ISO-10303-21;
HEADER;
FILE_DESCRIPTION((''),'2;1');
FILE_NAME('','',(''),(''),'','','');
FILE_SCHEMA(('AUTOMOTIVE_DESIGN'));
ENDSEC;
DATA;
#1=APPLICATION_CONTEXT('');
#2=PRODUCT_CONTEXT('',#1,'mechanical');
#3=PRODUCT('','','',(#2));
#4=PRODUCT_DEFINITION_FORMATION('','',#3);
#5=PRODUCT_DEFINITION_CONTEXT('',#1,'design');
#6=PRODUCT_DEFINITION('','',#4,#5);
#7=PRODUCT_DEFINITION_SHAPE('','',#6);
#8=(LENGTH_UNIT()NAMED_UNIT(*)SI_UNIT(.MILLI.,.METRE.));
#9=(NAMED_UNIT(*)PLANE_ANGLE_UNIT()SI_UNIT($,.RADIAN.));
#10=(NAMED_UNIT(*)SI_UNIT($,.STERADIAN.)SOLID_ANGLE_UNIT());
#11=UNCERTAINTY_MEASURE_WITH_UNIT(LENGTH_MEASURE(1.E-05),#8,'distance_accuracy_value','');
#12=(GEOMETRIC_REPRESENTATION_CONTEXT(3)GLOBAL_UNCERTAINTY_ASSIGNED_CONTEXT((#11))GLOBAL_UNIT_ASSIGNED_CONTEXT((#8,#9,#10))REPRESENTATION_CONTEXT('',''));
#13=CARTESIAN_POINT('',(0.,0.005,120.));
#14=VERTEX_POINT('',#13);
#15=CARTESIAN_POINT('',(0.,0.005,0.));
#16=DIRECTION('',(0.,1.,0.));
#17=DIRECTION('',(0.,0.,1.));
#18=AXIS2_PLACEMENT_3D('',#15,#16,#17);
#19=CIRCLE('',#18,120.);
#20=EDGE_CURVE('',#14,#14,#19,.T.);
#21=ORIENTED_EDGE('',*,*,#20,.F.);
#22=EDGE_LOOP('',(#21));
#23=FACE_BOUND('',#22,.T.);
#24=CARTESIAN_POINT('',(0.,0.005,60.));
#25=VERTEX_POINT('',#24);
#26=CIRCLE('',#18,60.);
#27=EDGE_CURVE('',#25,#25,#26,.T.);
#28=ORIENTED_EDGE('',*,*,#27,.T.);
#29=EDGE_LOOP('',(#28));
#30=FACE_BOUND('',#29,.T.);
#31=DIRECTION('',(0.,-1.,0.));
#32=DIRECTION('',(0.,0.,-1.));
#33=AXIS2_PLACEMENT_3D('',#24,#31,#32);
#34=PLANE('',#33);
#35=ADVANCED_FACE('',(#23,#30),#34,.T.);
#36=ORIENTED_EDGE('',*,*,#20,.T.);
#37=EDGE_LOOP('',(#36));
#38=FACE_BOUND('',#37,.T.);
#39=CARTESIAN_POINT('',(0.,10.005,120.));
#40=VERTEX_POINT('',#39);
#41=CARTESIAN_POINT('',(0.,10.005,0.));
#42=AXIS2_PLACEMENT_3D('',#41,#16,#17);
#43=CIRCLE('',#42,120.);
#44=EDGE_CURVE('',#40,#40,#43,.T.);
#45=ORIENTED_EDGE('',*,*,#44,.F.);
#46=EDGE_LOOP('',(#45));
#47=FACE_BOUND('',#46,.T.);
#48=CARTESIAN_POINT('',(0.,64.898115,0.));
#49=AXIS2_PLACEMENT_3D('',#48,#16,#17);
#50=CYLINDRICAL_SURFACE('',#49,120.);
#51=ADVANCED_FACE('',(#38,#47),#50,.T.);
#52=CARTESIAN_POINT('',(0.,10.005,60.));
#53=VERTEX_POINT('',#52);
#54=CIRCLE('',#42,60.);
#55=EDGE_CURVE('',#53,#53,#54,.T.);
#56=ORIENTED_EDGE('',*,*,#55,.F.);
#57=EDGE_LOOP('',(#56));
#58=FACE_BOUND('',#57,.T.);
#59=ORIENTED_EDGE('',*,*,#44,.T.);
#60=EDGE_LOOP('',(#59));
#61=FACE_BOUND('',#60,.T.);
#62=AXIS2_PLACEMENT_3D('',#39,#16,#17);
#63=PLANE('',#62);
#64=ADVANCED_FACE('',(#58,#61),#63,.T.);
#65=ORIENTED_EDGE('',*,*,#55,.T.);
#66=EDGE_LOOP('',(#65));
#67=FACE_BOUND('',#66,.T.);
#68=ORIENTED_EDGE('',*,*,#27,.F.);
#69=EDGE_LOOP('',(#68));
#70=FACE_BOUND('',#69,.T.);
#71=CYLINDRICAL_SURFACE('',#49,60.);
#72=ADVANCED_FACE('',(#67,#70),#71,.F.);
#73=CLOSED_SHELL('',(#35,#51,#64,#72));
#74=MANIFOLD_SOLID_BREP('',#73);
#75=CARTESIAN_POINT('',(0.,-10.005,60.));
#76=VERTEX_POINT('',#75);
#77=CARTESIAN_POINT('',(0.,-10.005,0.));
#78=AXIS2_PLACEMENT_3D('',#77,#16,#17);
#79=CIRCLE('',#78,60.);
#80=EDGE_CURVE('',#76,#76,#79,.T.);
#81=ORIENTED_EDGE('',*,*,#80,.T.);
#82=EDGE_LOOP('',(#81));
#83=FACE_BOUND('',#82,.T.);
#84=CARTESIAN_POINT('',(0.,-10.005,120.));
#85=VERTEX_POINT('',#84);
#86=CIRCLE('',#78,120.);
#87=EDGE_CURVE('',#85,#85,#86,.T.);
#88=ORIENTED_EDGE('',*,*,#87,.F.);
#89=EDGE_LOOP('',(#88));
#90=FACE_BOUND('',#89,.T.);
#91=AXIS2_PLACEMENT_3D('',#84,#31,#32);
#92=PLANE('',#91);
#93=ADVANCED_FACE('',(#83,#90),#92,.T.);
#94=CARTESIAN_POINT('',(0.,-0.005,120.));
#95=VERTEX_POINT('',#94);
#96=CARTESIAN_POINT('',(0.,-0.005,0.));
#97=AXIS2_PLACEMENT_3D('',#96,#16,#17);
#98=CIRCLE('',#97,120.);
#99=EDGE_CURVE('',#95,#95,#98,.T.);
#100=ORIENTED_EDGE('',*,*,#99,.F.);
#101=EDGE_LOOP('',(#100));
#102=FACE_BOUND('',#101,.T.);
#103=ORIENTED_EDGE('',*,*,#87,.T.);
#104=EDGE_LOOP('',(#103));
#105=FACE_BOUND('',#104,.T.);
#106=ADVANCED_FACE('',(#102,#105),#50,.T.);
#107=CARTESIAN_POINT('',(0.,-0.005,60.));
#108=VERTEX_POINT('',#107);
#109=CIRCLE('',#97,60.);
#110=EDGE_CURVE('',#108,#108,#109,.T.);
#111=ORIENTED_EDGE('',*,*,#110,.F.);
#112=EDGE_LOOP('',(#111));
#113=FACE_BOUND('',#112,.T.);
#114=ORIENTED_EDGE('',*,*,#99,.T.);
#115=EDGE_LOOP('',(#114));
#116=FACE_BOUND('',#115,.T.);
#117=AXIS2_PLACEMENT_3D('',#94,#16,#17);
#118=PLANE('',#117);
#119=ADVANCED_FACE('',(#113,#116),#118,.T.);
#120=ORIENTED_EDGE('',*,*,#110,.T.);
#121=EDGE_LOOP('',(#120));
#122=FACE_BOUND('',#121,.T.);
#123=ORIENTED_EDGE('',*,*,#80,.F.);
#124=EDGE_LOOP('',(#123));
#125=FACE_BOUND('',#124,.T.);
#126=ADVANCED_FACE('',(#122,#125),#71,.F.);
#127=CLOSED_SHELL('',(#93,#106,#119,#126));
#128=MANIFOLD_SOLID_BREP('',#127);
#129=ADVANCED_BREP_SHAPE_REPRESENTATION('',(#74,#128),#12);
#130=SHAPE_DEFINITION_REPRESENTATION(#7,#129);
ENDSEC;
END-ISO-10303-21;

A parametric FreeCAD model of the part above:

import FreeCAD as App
import Part
import Sketcher
from FreeCAD import Vector


def add_polygon(sketch, points):
    """Adds a closed chain of lines whose ends are joined by coincident constraints."""
    first, n = sketch.GeometryCount, len(points)
    for a, b in zip(points, points[1:] + points[:1]):
        sketch.addGeometry(Part.LineSegment(App.Vector(*a, 0), App.Vector(*b, 0)), False)
    for i in range(n):
        sketch.addConstraint(Sketcher.Constraint("Coincident", first + i, 2, first + (i + 1) % n, 1))

doc = App.newDocument("Part")
body = doc.addObject("PartDesign::Body", "Body")
body.AllowCompound = True

# Sketch on YZ plane
sketch1 = body.newObject("Sketcher::SketchObject", "Sketch")
sketch1.AttachmentSupport = (doc.getObject("YZ_Plane"), [""])
sketch1.MapMode = "FlatFace"
add_polygon(sketch1, [(10.005, 120), (0.005, 120), (0.005, 60), (10.005, 60)])  # lines 0-3
add_polygon(sketch1, [(-0.005, 120), (-10.005, 120), (-10.005, 60), (-0.005, 60)])  # lines 4-7
sketch1.addConstraint(Sketcher.Constraint("Horizontal", 0))
sketch1.addConstraint(Sketcher.Constraint("Vertical", 1))
sketch1.addConstraint(Sketcher.Constraint("Horizontal", 2))
sketch1.addConstraint(Sketcher.Constraint("Vertical", 3))
sketch1.addConstraint(Sketcher.Constraint("Horizontal", 4))
sketch1.addConstraint(Sketcher.Constraint("Vertical", 5))
sketch1.addConstraint(Sketcher.Constraint("Horizontal", 6))
sketch1.addConstraint(Sketcher.Constraint("Vertical", 7))
sketch1.addConstraint(Sketcher.Constraint("Symmetric", 3, 2, 4, 2, -2))
sketch1.addConstraint(Sketcher.Constraint("Symmetric", 1, 2, 6, 2, -2))
sketch1.addConstraint(Sketcher.Constraint("DistanceX", 0, 2, 0, 1, 10.0))
sketch1.addConstraint(Sketcher.Constraint("DistanceY", 1, 2, 1, 1, 60.0))
sketch1.addConstraint(Sketcher.Constraint("DistanceY", -1, 1, 0, 2, 120.0))
sketch1.addConstraint(Sketcher.Constraint("DistanceX", 4, 2, 0, 2, 10.01))
revolution = body.newObject("PartDesign::Revolution", "Revolution")
revolution.Profile = sketch1
revolution.ReferenceAxis = (sketch1, ["H_Axis"])
revolution.Angle = 360

doc.recompute()
